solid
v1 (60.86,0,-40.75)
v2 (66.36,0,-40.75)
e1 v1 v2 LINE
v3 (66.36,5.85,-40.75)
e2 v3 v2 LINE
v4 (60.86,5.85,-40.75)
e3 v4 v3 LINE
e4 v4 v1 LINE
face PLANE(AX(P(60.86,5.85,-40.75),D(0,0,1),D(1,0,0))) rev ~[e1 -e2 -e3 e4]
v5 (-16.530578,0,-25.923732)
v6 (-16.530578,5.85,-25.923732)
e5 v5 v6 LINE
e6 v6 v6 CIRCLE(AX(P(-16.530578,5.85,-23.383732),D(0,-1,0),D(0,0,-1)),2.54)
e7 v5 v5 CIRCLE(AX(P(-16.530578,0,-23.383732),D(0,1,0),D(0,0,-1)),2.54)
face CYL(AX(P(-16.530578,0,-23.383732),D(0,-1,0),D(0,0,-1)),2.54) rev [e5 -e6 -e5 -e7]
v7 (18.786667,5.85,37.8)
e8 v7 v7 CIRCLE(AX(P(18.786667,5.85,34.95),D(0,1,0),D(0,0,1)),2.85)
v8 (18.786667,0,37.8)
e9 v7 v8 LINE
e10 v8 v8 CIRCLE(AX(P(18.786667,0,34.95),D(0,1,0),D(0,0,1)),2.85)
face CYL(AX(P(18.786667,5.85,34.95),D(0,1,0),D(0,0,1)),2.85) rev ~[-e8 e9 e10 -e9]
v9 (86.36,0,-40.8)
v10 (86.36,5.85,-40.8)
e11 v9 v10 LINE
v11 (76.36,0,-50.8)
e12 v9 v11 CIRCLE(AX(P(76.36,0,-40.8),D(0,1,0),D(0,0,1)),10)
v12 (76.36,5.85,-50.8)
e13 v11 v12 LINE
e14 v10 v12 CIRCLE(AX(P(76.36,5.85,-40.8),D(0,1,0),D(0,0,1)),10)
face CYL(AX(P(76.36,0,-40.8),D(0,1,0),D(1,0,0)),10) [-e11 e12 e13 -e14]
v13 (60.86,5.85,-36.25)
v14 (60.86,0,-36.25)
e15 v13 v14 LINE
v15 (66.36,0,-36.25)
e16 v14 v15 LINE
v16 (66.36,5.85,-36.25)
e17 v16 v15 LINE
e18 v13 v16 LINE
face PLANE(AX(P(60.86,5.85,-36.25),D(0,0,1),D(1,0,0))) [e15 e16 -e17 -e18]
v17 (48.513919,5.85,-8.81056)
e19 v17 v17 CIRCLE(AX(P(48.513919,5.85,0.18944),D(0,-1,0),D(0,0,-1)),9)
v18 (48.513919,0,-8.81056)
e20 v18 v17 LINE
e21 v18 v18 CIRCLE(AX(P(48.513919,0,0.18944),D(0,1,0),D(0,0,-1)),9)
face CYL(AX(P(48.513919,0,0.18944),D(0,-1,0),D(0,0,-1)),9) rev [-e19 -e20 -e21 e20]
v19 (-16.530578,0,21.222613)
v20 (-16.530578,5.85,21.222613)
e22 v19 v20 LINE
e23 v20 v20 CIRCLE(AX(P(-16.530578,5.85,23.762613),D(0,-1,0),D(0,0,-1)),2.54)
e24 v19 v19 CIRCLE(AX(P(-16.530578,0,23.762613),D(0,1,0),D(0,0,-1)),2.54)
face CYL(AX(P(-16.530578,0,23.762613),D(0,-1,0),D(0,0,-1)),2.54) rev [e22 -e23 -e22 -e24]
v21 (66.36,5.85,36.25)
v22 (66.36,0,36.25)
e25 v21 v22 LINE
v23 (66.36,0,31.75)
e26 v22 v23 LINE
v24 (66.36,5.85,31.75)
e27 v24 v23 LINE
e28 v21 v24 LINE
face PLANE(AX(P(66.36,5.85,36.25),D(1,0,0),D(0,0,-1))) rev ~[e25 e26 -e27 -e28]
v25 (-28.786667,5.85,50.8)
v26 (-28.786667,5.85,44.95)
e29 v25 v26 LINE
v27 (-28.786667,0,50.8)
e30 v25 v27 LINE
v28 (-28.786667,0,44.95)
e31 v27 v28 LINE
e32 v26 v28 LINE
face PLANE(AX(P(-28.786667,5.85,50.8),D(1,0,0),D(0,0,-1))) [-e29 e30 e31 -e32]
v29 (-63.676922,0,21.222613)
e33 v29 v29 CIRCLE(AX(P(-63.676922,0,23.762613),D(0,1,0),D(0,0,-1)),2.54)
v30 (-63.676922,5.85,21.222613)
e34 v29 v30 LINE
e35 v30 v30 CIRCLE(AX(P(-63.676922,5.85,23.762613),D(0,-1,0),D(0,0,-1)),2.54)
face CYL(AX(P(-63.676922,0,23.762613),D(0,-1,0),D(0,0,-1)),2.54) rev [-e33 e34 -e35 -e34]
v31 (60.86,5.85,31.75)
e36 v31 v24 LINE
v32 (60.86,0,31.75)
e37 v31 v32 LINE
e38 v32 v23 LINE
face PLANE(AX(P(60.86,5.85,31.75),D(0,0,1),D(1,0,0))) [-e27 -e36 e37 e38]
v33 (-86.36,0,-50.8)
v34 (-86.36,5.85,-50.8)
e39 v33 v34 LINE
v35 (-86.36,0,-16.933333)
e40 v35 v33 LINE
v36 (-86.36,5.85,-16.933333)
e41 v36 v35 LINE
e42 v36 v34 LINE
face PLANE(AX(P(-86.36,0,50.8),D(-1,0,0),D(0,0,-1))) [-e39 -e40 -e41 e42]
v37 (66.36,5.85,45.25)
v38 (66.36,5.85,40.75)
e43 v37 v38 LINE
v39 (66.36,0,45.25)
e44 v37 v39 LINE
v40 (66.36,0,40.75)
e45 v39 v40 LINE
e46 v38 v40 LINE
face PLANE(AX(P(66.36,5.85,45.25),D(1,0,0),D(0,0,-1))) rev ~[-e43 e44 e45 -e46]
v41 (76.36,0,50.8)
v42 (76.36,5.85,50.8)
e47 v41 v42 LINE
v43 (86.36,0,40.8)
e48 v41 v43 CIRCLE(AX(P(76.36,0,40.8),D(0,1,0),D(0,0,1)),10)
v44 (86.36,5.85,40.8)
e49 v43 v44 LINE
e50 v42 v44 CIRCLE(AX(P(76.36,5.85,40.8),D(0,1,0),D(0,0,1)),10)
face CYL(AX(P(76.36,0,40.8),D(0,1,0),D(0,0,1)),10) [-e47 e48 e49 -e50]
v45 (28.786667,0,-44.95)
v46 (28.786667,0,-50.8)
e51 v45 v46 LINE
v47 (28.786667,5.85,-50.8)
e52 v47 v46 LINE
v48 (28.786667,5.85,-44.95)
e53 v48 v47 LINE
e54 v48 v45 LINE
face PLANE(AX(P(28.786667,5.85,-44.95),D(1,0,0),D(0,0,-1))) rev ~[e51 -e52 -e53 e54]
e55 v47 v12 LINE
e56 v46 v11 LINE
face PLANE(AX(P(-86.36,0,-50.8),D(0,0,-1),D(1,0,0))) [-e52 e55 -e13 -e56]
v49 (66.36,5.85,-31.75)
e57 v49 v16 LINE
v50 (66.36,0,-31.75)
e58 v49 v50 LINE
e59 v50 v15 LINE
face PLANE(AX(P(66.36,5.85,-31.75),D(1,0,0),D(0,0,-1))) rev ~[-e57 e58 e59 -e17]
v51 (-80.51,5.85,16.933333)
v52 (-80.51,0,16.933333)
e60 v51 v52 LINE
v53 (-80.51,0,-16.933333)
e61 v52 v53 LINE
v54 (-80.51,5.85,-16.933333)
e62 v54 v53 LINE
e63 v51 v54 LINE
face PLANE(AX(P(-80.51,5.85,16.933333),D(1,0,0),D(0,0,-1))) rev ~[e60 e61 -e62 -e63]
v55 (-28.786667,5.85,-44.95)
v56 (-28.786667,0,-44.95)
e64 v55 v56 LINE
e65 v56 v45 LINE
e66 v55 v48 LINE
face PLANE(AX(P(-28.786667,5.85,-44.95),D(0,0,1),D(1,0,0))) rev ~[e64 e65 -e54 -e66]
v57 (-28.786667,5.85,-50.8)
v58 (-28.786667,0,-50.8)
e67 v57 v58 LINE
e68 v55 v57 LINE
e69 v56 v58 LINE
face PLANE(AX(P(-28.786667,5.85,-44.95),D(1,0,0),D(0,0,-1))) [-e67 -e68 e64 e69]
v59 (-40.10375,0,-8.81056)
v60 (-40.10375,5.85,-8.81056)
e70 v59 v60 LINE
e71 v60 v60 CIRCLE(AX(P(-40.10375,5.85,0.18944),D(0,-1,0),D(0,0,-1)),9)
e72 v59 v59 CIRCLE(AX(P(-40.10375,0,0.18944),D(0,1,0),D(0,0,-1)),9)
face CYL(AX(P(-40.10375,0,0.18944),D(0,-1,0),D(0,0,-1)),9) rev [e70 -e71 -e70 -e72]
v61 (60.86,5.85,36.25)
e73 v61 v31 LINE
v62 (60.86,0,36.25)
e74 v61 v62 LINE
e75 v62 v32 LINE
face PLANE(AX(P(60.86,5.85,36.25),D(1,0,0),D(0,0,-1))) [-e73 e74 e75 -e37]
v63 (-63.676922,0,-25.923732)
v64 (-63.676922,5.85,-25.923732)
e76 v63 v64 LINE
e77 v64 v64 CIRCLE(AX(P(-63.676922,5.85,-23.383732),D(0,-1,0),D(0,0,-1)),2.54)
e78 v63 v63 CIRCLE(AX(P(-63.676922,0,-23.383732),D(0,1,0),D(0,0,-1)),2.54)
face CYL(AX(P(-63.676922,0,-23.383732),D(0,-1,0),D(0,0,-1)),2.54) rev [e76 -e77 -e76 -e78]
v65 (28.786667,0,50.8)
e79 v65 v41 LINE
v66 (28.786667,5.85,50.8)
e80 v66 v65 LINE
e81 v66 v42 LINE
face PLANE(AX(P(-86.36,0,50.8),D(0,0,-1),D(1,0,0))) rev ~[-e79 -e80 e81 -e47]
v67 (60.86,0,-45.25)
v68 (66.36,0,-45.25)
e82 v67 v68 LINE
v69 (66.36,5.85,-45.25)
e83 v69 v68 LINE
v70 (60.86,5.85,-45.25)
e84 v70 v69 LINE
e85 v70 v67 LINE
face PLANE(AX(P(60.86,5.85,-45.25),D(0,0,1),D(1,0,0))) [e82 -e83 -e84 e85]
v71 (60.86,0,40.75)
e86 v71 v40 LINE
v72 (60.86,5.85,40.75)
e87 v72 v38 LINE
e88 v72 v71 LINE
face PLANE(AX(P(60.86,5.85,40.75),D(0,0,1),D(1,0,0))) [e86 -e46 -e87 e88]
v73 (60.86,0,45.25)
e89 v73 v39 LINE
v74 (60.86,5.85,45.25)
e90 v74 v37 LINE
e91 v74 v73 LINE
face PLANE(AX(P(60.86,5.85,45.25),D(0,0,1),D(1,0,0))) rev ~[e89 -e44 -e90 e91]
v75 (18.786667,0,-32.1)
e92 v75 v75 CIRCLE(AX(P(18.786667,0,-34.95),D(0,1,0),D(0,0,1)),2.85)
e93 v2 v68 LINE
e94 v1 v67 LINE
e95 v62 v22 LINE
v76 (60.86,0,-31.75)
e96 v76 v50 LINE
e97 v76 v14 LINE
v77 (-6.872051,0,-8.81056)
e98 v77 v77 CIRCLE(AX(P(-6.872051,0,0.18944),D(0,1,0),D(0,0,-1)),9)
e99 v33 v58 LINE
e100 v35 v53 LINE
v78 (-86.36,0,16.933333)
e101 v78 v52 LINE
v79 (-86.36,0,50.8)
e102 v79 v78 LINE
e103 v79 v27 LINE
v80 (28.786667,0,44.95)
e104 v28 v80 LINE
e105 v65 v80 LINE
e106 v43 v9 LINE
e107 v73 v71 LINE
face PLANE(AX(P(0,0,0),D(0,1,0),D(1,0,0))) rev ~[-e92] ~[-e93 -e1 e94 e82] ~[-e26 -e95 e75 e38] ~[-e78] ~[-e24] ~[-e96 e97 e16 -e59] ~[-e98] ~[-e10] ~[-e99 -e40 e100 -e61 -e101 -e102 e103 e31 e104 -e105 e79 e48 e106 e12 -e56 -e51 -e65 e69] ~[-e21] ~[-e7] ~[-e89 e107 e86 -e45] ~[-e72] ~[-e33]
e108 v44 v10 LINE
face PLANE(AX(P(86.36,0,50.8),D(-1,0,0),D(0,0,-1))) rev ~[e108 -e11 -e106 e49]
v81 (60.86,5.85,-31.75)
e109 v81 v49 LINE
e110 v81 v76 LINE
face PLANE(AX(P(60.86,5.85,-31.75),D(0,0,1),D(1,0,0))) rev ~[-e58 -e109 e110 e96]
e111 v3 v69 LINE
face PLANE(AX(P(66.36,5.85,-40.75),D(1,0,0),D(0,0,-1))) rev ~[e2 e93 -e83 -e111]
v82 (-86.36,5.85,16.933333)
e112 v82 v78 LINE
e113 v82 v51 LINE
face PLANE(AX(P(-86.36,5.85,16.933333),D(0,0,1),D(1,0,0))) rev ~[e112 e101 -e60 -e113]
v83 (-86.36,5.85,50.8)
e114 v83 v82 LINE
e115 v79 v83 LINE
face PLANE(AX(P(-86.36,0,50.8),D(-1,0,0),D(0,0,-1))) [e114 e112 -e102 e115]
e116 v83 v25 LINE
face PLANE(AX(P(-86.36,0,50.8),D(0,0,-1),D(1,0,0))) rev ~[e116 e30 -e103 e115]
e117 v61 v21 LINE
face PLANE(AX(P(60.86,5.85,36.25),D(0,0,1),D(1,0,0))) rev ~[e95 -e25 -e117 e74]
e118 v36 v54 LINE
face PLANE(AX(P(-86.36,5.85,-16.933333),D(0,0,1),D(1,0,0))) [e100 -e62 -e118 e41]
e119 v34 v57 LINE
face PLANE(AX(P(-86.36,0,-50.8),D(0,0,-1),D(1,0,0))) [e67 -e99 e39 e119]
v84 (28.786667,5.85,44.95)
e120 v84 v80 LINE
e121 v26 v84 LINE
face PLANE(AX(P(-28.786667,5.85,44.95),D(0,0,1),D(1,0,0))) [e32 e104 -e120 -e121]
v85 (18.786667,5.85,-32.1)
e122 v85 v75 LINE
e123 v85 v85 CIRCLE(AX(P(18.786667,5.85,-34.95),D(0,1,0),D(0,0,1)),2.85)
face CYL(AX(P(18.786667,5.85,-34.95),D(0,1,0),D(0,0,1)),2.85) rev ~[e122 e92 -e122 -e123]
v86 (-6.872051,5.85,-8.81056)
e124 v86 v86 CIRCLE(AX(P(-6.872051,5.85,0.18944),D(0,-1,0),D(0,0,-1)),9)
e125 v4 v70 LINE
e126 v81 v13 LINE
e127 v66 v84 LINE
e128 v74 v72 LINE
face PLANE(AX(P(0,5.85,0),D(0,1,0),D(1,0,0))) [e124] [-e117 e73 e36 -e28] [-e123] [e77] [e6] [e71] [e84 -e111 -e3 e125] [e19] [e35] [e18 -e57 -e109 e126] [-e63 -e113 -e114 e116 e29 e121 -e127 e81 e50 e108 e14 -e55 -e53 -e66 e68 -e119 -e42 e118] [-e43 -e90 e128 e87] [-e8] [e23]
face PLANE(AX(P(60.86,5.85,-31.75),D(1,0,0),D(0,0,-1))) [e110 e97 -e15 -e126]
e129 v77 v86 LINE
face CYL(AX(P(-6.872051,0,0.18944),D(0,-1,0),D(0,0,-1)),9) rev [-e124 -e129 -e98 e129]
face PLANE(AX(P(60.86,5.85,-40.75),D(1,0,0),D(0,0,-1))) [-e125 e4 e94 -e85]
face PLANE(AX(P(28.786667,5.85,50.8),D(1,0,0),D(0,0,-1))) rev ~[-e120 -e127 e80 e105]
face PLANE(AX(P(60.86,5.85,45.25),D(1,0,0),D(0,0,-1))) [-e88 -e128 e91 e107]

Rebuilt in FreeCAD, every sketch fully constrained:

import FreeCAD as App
import Part
import Sketcher


def edges_at(feature, points):
    """Names of the edges that pass closest to the given points."""
    edges = feature.Shape.Edges
    near = lambda p: min(range(len(edges)), key=lambda i: edges[i].distToShape(Part.Vertex(*p))[0])
    return sorted({f"Edge{near(p) + 1}" for p in points})


def add_polygon(sketch, points):
    """Adds a closed chain of lines whose ends are joined by coincident constraints."""
    first, n = sketch.GeometryCount, len(points)
    for a, b in zip(points, points[1:] + points[:1]):
        sketch.addGeometry(Part.LineSegment(App.Vector(*a, 0), App.Vector(*b, 0)), False)
    for i in range(n):
        sketch.addConstraint(Sketcher.Constraint("Coincident", first + i, 2, first + (i + 1) % n, 1))

doc = App.newDocument("Part")
body = doc.addObject("PartDesign::Body", "Body")

# Sketch on XZ plane
sketch1 = doc.addObject("Sketcher::SketchObject", "Sketch")
body.addObject(sketch1)
sketch1.AttachmentSupport = (doc.XZ_Plane, [""])
sketch1.MapMode = "FlatFace"
add_polygon(sketch1, [(-86, -51), (-86, 51), (86, 51), (86, -51)])  # lines 0-3
sketch1.addConstraint(Sketcher.Constraint("Vertical", 0))
sketch1.addConstraint(Sketcher.Constraint("Horizontal", 1))
sketch1.addConstraint(Sketcher.Constraint("Vertical", 2))
sketch1.addConstraint(Sketcher.Constraint("Horizontal", 3))
sketch1.addConstraint(Sketcher.Constraint("Symmetric", 0, 2, 2, 2, -1, 1))
sketch1.addConstraint(Sketcher.Constraint("DistanceY", 0, 1, 0, 2, 101.6))
sketch1.addConstraint(Sketcher.Constraint("DistanceX", 1, 1, 1, 2, 172.72))
pad1 = doc.addObject("PartDesign::Pad", "Pad")
body.addObject(pad1)
pad1.Profile = sketch1
pad1.Length = 5.85
pad1.Reversed = True

# Sketch on XZ plane
sketch2 = doc.addObject("Sketcher::SketchObject", "Sketch001")
body.addObject(sketch2)
sketch2.AttachmentSupport = (doc.XZ_Plane, [""])
sketch2.MapMode = "FlatFace"
sketch2.AttachmentOffset = App.Placement(App.Vector(0, 0, -5.85), App.Rotation())
add_polygon(sketch2, [(-86.4, -16.9), (-86.4, 16.9), (-80.5, 16.9), (-80.5, -16.9)])  # lines 0-3
add_polygon(sketch2, [(-28.8, 45), (-28.8, 50.8), (28.8, 50.8), (28.8, 45)])  # lines 4-7
add_polygon(sketch2, [(-28.8, -50.8), (-28.8, -45), (28.8, -45), (28.8, -50.8)])  # lines 8-11
add_polygon(sketch2, [(60.9, -45.2), (60.9, -40.8), (66.4, -40.8), (66.4, -45.2)])  # lines 12-15
add_polygon(sketch2, [(60.9, 40.8), (60.9, 45.2), (66.4, 45.2), (66.4, 40.8)])  # lines 16-19
add_polygon(sketch2, [(60.9, 31.8), (60.9, 36.2), (66.4, 36.2), (66.4, 31.8)])  # lines 20-23
add_polygon(sketch2, [(60.9, -36.2), (60.9, -31.8), (66.4, -31.8), (66.4, -36.2)])  # lines 24-27
sketch2.addConstraint(Sketcher.Constraint("Vertical", 0))
sketch2.addConstraint(Sketcher.Constraint("Horizontal", 1))
sketch2.addConstraint(Sketcher.Constraint("Vertical", 2))
sketch2.addConstraint(Sketcher.Constraint("Horizontal", 3))
sketch2.addConstraint(Sketcher.Constraint("Vertical", 4))
sketch2.addConstraint(Sketcher.Constraint("Horizontal", 5))
sketch2.addConstraint(Sketcher.Constraint("Vertical", 6))
sketch2.addConstraint(Sketcher.Constraint("Horizontal", 7))
sketch2.addConstraint(Sketcher.Constraint("Vertical", 8))
sketch2.addConstraint(Sketcher.Constraint("Horizontal", 9))
sketch2.addConstraint(Sketcher.Constraint("Vertical", 10))
sketch2.addConstraint(Sketcher.Constraint("Horizontal", 11))
sketch2.addConstraint(Sketcher.Constraint("Vertical", 12))
sketch2.addConstraint(Sketcher.Constraint("Horizontal", 13))
sketch2.addConstraint(Sketcher.Constraint("Vertical", 14))
sketch2.addConstraint(Sketcher.Constraint("Horizontal", 15))
sketch2.addConstraint(Sketcher.Constraint("Vertical", 16))
sketch2.addConstraint(Sketcher.Constraint("Horizontal", 17))
sketch2.addConstraint(Sketcher.Constraint("Vertical", 18))
sketch2.addConstraint(Sketcher.Constraint("Horizontal", 19))
sketch2.addConstraint(Sketcher.Constraint("Vertical", 20))
sketch2.addConstraint(Sketcher.Constraint("Horizontal", 21))
sketch2.addConstraint(Sketcher.Constraint("Vertical", 22))
sketch2.addConstraint(Sketcher.Constraint("Horizontal", 23))
sketch2.addConstraint(Sketcher.Constraint("Vertical", 24))
sketch2.addConstraint(Sketcher.Constraint("Horizontal", 25))
sketch2.addConstraint(Sketcher.Constraint("Vertical", 26))
sketch2.addConstraint(Sketcher.Constraint("Horizontal", 27))
sketch2.addConstraint(Sketcher.Constraint("Symmetric", 6, 2, 8, 2, -1, 1))
sketch2.addConstraint(Sketcher.Constraint("Symmetric", 4, 2, 10, 2, -1, 1))
sketch2.addConstraint(Sketcher.Constraint("Symmetric", 15, 2, 16, 2, -1))
sketch2.addConstraint(Sketcher.Constraint("Symmetric", 13, 2, 18, 2, -1))
sketch2.addConstraint(Sketcher.Constraint("Symmetric", 23, 2, 24, 2, -1))
sketch2.addConstraint(Sketcher.Constraint("Symmetric", 21, 2, 26, 2, -1))
sketch2.addConstraint(Sketcher.Constraint("Vertical", 7, 2, 8, 2))
sketch2.addConstraint(Sketcher.Constraint("Vertical", 19, 2, 20, 2))
sketch2.addConstraint(Sketcher.Constraint("Vertical", 18, 2, 21, 2))
sketch2.addConstraint(Sketcher.Constraint("Equal", 3, 4))
sketch2.addConstraint(Sketcher.Constraint("Equal", 18, 20))
sketch2.addConstraint(Sketcher.Constraint("DistanceX", 13, 1, 13, 2, 5.5))
sketch2.addConstraint(Sketcher.Constraint("DistanceY", 12, 1, 12, 2, 4.5))
sketch2.addConstraint(Sketcher.Constraint("DistanceY", 12, 2, 16, 2, 86.0))
sketch2.addConstraint(Sketcher.Constraint("DistanceY", 20, 2, 16, 2, 9.0))
sketch2.addConstraint(Sketcher.Constraint("DistanceX", 1, 1, 1, 2, 5.85))
sketch2.addConstraint(Sketcher.Constraint("DistanceY", -1, 1, 4, 2, 50.8))
sketch2.addConstraint(Sketcher.Constraint("DistanceX", 0, 2, -1, 1, 86.36))
sketch2.addConstraint(Sketcher.Constraint("DistanceX", -1, 1, 12, 2, 60.86))
sketch2.addConstraint(Sketcher.Constraint("DistanceX", 5, 1, 5, 2, 57.573333))
sketch2.addConstraint(Sketcher.Constraint("DistanceY", 0, 1, 0, 2, 33.866667))
sketch2.addConstraint(Sketcher.Constraint("DistanceY", -1, 1, 0, 2, 16.933333))
pocket1 = doc.addObject("PartDesign::Pocket", "Pocket")
body.addObject(pocket1)
pocket1.Profile = sketch2
pocket1.Length = 10
pocket1.Reversed = True

# Sketch on XZ plane
sketch3 = doc.addObject("Sketcher::SketchObject", "Sketch002")
body.addObject(sketch3)
sketch3.AttachmentSupport = (doc.XZ_Plane, [""])
sketch3.MapMode = "FlatFace"
sketch3.addGeometry(Part.Circle(App.Vector(-6.9, 0.2, 0), App.Vector(0, 0, 1), 9), False)
sketch3.addGeometry(Part.Circle(App.Vector(-40.1, 0.2, 0), App.Vector(0, 0, 1), 9), False)
sketch3.addGeometry(Part.Circle(App.Vector(-63.7, -23.4, 0), App.Vector(0, 0, 1), 2.5), False)
sketch3.addGeometry(Part.Circle(App.Vector(-16.5, -23.4, 0), App.Vector(0, 0, 1), 2.5), False)
sketch3.addGeometry(Part.Circle(App.Vector(-63.7, 23.8, 0), App.Vector(0, 0, 1), 2.5), False)
sketch3.addGeometry(Part.Circle(App.Vector(-16.5, 23.8, 0), App.Vector(0, 0, 1), 2.5), False)
sketch3.addGeometry(Part.Circle(App.Vector(48.5, 0.2, 0), App.Vector(0, 0, 1), 9), False)
sketch3.addConstraint(Sketcher.Constraint("Equal", 0, 1))
sketch3.addConstraint(Sketcher.Constraint("Equal", 2, 3))
sketch3.addConstraint(Sketcher.Constraint("Equal", 3, 4))
sketch3.addConstraint(Sketcher.Constraint("Equal", 4, 5))
sketch3.addConstraint(Sketcher.Constraint("Equal", 1, 6))
sketch3.addConstraint(Sketcher.Constraint("Horizontal", 0, 3, 1, 3))
sketch3.addConstraint(Sketcher.Constraint("Horizontal", 2, 3, 3, 3))
sketch3.addConstraint(Sketcher.Constraint("Horizontal", 4, 3, 5, 3))
sketch3.addConstraint(Sketcher.Constraint("Horizontal", 1, 3, 6, 3))
sketch3.addConstraint(Sketcher.Constraint("Vertical", 2, 3, 4, 3))
sketch3.addConstraint(Sketcher.Constraint("Vertical", 3, 3, 5, 3))
sketch3.addConstraint(Sketcher.Constraint("Diameter", 0, 18.0))
sketch3.addConstraint(Sketcher.Constraint("Diameter", 2, 5.08))
sketch3.addConstraint(Sketcher.Constraint("DistanceX", 1, 3, 0, 3, 33.231699))
sketch3.addConstraint(Sketcher.Constraint("DistanceX", 0, 3, -1, 1, 6.872051))
sketch3.addConstraint(Sketcher.Constraint("DistanceY", -1, 1, 0, 3, 0.18944))
sketch3.addConstraint(Sketcher.Constraint("DistanceY", 2, 3, -1, 1, 23.383732))
sketch3.addConstraint(Sketcher.Constraint("DistanceX", -1, 1, 6, 3, 48.513919))
sketch3.addConstraint(Sketcher.Constraint("DistanceX", 2, 3, 0, 3, 56.804872))
sketch3.addConstraint(Sketcher.Constraint("DistanceX", 3, 3, -1, 1, 16.530578))
sketch3.addConstraint(Sketcher.Constraint("DistanceY", -1, 1, 4, 3, 23.762613))
pocket2 = doc.addObject("PartDesign::Pocket", "Pocket001")
body.addObject(pocket2)
pocket2.Profile = sketch3
pocket2.Length = 16
doc.recompute()

fillet = doc.addObject("PartDesign::Fillet", "Fillet")
body.addObject(fillet)
fillet.Base = (pocket2, edges_at(pocket2, [(86.36, 2.925, 50.8), (86.36, 2.925, -50.8)]))
fillet.Radius = 10

# Sketch on XZ plane
sketch4 = doc.addObject("Sketcher::SketchObject", "Sketch003")
body.addObject(sketch4)
sketch4.AttachmentSupport = (doc.XZ_Plane, [""])
sketch4.MapMode = "FlatFace"
sketch4.AttachmentOffset = App.Placement(App.Vector(0, 0, -5.85), App.Rotation())
sketch4.addGeometry(Part.Circle(App.Vector(18.8, 35, 0), App.Vector(0, 0, 1), 2.9), False)
sketch4.addGeometry(Part.Circle(App.Vector(18.8, -35, 0), App.Vector(0, 0, 1), 2.9), False)
sketch4.addConstraint(Sketcher.Constraint("Equal", 0, 1))
sketch4.addConstraint(Sketcher.Constraint("Symmetric", 0, 3, 1, 3, -1))
sketch4.addConstraint(Sketcher.Constraint("Diameter", 0, 5.7))
sketch4.addConstraint(Sketcher.Constraint("DistanceY", 1, 3, 0, 3, 69.9))
sketch4.addConstraint(Sketcher.Constraint("DistanceX", -1, 1, 0, 3, 18.786667))
pocket3 = doc.addObject("PartDesign::Pocket", "Pocket002")
body.addObject(pocket3)
pocket3.Profile = sketch4
pocket3.Length = 10
pocket3.Reversed = True

doc.recompute()
